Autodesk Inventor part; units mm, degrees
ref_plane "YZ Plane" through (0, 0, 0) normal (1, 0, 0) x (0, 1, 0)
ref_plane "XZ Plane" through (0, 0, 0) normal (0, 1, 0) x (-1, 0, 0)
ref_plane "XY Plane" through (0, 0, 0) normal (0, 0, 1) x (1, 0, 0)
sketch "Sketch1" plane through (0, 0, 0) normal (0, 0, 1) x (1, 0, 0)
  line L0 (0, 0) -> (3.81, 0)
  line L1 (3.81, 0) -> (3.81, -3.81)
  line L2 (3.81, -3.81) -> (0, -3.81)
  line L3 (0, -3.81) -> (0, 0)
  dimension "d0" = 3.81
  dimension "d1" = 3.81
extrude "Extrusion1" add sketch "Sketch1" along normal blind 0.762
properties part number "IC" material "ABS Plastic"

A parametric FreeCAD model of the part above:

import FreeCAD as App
import Part
import Sketcher

V = App.Vector
Q = App.Units.Quantity

doc = App.newDocument("Part")
body = doc.addObject("PartDesign::Body", "Body")

# Sketch on XY plane
sketch1 = body.newObject("Sketcher::SketchObject", "Sketch")
sketch1.AttachmentSupport = (doc.getObject("XY_Plane"), [""])
sketch1.MapMode = "FlatFace"
sketch1.addGeometry([
    Part.LineSegment(V(3.8, 0, 0), V(0, 0, 0)),
    Part.LineSegment(V(0, 0, 0), V(0, -3.8, 0)),
    Part.LineSegment(V(0, -3.8, 0), V(3.8, -3.8, 0)),
    Part.LineSegment(V(3.8, -3.8, 0), V(3.8, 0, 0)),
], False)
sketch1.addConstraint([
    Sketcher.Constraint("Coincident", 0, 2, 1, 1),
    Sketcher.Constraint("Coincident", 1, 2, 2, 1),
    Sketcher.Constraint("Coincident", 2, 2, 3, 1),
    Sketcher.Constraint("Coincident", 3, 2, 0, 1),
    Sketcher.Constraint("Horizontal", 0),
    Sketcher.Constraint("Vertical", 1),
    Sketcher.Constraint("Horizontal", 2),
    Sketcher.Constraint("Vertical", 3),
    Sketcher.Constraint("Coincident", 0, 2, -1, 1),
    Sketcher.Constraint("Equal", 2, 1),
    Sketcher.Constraint("DistanceX", 0, 2, 0, 1, Q("0.15 in")),
])
pad1 = body.newObject("PartDesign::Pad", "Pad")
pad1.Profile = sketch1
pad1.Length = Q("0.03 in")

doc.recompute()
